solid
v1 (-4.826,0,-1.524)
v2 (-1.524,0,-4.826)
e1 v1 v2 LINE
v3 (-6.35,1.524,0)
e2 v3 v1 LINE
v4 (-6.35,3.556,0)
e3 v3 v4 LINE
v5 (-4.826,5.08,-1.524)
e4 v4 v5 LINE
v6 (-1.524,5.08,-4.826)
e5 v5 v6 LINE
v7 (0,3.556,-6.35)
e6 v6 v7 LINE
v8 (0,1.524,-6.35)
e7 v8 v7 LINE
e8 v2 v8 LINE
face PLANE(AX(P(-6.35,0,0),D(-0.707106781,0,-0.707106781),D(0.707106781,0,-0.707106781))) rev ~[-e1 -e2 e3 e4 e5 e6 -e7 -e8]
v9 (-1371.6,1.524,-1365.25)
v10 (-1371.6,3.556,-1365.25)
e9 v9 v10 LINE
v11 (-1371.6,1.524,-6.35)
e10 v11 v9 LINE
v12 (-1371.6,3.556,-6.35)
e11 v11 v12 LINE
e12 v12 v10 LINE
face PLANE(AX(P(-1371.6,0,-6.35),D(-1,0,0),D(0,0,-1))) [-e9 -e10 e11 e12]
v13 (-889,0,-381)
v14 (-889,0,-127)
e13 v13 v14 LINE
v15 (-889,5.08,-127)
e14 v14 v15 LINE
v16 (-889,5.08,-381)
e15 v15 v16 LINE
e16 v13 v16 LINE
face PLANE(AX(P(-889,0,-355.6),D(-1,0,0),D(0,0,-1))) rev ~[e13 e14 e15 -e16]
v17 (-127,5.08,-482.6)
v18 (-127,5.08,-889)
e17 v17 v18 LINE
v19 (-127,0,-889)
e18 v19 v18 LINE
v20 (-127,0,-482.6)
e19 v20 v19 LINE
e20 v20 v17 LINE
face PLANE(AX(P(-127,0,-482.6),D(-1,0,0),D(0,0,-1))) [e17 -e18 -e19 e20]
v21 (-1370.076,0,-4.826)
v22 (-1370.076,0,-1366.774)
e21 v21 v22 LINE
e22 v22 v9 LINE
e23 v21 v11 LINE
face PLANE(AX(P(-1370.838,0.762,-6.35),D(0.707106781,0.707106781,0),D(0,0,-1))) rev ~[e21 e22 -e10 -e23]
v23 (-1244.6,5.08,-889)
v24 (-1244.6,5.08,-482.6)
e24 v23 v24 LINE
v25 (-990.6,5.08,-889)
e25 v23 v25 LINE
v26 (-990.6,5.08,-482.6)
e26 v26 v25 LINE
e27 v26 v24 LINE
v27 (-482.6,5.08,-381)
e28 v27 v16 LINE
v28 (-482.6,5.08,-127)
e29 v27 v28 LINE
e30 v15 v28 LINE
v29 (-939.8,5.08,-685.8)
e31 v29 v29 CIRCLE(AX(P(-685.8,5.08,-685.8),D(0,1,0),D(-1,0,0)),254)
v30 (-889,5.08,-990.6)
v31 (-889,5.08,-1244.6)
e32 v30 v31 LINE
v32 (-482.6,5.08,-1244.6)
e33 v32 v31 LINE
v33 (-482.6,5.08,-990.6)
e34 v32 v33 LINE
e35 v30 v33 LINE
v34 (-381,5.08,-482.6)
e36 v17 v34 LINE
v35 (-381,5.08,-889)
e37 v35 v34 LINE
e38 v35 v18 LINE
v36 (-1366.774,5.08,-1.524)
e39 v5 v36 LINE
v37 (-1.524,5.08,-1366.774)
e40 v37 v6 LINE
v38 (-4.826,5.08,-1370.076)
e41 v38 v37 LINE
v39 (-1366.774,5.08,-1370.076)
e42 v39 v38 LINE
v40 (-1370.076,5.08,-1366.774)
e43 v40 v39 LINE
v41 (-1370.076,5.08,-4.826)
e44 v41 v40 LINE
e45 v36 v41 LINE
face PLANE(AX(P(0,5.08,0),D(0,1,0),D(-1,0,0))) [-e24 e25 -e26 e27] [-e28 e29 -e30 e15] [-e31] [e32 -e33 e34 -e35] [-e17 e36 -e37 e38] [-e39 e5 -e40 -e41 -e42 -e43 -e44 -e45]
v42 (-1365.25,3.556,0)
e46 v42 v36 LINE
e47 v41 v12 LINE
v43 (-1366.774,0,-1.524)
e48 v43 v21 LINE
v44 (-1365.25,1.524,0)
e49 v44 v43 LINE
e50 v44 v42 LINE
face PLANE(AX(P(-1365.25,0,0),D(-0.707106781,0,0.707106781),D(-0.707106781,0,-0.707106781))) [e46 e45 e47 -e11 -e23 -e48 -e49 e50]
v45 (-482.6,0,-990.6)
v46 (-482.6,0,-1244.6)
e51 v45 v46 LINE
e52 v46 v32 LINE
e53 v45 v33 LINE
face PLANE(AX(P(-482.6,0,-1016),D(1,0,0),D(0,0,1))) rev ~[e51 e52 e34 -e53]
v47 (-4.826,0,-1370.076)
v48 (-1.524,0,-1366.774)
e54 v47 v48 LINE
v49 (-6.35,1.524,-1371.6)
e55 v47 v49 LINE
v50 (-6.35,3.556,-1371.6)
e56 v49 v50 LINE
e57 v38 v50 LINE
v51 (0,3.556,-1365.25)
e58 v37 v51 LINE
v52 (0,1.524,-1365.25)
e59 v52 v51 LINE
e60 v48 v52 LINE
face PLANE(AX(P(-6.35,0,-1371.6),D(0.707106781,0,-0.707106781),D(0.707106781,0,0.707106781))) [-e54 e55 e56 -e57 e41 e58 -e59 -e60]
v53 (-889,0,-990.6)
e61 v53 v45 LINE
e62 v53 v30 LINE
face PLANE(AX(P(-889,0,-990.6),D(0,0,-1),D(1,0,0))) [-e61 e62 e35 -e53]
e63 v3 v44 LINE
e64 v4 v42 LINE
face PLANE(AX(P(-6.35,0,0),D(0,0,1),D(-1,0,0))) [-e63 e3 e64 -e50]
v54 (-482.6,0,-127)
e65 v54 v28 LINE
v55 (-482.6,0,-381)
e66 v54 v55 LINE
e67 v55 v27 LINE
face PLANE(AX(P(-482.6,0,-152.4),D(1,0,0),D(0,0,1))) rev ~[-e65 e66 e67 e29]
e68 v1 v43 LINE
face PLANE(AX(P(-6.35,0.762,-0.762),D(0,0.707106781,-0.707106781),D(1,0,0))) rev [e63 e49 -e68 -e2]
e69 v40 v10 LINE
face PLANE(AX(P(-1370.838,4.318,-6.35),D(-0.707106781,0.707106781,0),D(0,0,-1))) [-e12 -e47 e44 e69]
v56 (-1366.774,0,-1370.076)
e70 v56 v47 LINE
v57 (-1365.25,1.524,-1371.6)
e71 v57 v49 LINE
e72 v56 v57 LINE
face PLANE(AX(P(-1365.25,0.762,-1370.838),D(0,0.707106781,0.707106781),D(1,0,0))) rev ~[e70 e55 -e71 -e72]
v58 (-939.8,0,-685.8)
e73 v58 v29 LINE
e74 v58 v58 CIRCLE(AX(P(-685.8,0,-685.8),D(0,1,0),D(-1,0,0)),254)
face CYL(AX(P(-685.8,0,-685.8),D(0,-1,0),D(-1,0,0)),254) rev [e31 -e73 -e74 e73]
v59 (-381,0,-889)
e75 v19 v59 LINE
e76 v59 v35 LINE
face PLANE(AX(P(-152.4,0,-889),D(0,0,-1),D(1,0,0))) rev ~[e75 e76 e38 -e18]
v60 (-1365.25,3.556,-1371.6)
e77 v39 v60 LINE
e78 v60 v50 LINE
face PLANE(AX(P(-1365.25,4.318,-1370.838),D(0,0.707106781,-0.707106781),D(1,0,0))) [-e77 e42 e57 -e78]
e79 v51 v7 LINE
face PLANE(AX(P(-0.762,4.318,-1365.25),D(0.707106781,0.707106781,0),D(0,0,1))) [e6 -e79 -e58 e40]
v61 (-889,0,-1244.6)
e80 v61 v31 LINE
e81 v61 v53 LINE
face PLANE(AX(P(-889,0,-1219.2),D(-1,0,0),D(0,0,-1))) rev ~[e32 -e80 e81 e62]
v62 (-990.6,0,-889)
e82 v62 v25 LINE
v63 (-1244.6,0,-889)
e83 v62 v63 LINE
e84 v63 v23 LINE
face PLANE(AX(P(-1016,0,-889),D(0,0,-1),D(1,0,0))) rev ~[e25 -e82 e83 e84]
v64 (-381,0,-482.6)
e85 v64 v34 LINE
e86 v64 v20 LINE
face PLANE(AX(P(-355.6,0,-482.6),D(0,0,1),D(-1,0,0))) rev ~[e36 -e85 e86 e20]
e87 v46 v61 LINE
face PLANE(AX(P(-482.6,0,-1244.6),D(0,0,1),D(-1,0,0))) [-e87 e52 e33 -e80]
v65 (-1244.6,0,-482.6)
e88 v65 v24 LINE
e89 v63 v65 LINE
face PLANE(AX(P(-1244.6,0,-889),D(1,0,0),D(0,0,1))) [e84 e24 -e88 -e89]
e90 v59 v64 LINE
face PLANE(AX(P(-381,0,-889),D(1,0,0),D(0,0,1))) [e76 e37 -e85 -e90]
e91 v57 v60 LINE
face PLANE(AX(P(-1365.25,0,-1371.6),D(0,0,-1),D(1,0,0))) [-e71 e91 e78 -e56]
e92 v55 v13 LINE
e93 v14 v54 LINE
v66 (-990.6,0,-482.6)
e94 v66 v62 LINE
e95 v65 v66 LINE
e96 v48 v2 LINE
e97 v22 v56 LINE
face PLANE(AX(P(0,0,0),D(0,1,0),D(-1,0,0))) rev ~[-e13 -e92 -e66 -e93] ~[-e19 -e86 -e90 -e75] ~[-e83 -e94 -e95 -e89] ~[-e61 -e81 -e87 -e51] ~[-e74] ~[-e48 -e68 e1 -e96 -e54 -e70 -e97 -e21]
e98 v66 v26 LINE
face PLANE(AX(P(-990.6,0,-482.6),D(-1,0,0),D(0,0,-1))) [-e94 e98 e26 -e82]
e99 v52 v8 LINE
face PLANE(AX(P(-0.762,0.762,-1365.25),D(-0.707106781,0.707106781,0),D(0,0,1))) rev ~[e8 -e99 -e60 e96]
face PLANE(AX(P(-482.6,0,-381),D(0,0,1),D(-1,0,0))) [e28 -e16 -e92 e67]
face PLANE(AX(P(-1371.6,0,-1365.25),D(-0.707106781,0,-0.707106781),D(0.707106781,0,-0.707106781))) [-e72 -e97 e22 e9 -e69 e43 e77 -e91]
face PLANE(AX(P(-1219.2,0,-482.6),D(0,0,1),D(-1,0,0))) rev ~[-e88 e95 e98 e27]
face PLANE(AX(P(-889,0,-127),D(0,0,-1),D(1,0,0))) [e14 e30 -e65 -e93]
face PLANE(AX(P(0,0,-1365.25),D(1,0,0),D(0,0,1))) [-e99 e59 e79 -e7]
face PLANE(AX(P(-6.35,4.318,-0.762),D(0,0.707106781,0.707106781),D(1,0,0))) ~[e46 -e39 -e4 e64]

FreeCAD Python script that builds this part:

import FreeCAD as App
import Part
import Sketcher
from FreeCAD import Vector
Q = App.Units.Quantity


def edges_at(feature, points):
    """Names of the edges that pass closest to the given points."""
    edges = feature.Shape.Edges
    near = lambda p: min(range(len(edges)), key=lambda i: edges[i].distToShape(Part.Vertex(*p))[0])
    return sorted({f"Edge{near(p) + 1}" for p in points})


def add_polygon(sketch, points):
    """Adds a closed chain of lines whose ends are joined by coincident constraints."""
    first, n = sketch.GeometryCount, len(points)
    for a, b in zip(points, points[1:] + points[:1]):
        sketch.addGeometry(Part.LineSegment(App.Vector(*a, 0), App.Vector(*b, 0)), False)
    for i in range(n):
        sketch.addConstraint(Sketcher.Constraint("Coincident", first + i, 2, first + (i + 1) % n, 1))

doc = App.newDocument("Part")
params = doc.addObject("Spreadsheet::Sheet", "Params")
for row, (alias, value) in enumerate([
    ("sketch1_diameter", "20 in"),
    ("sketch1_width", "16 in"),
    ("sketch1_width2", "10 in"),
    ("pad1_length", "0.2 in"),
    ("chamfer_size", "0.06 in"),
], start=1):
    params.set(f"A{row}", alias)
    params.set(f"B{row}", "=" + value)
    params.setAlias(f"B{row}", alias)

body = doc.addObject("PartDesign::Body", "Body")

# Sketch on XZ plane
sketch1 = body.newObject("Sketcher::SketchObject", "Sketch")
sketch1.AttachmentSupport = (doc.getObject("XZ_Plane"), [""])
sketch1.MapMode = "FlatFace"
add_polygon(sketch1, [(-1365, 0), (-6, 0), (0, -6), (0, -1365), (-6, -1372), (-1365, -1372), (-1372, -1365), (-1372, -6)])  # lines 0-7
add_polygon(sketch1, [(-1245, -889), (-991, -889), (-991, -483), (-1245, -483)])  # lines 8-11
add_polygon(sketch1, [(-889, -127), (-889, -381), (-483, -381), (-483, -127)])  # lines 12-15
add_polygon(sketch1, [(-127, -483), (-381, -483), (-381, -889), (-127, -889)])  # lines 16-19
add_polygon(sketch1, [(-483, -1245), (-483, -991), (-889, -991), (-889, -1245)])  # lines 20-23
sketch1.addGeometry(Part.Circle(Vector(-686, -686, 0), Vector(0, 0, 1), 254), False)  # 24
sketch1.addConstraint([
    Sketcher.Constraint("Horizontal", 0),
    Sketcher.Constraint("Vertical", 2),
    Sketcher.Constraint("Horizontal", 4),
    Sketcher.Constraint("Vertical", 6),
    Sketcher.Constraint("Horizontal", 8),
    Sketcher.Constraint("Vertical", 9),
    Sketcher.Constraint("Horizontal", 10),
    Sketcher.Constraint("Vertical", 11),
    Sketcher.Constraint("Vertical", 12),
    Sketcher.Constraint("Horizontal", 13),
    Sketcher.Constraint("Vertical", 14),
    Sketcher.Constraint("Horizontal", 15),
    Sketcher.Constraint("Horizontal", 16),
    Sketcher.Constraint("Vertical", 17),
    Sketcher.Constraint("Horizontal", 18),
    Sketcher.Constraint("Vertical", 19),
    Sketcher.Constraint("Vertical", 20),
    Sketcher.Constraint("Horizontal", 21),
    Sketcher.Constraint("Vertical", 22),
    Sketcher.Constraint("Horizontal", 23),
    Sketcher.Constraint("PointOnObject", 0, 2, -1),
    Sketcher.Constraint("PointOnObject", 1, 2, -2),
    Sketcher.Constraint("Perpendicular", 1, 3),
    Sketcher.Constraint("Perpendicular", 3, 5),
    Sketcher.Constraint("Perpendicular", 5, 7),
    Sketcher.Constraint("Horizontal", 2, 2, 5, 2),
    Sketcher.Constraint("Horizontal", 1, 2, 6, 2),
    Sketcher.Constraint("Horizontal", 10, 2, 16, 2),
    Sketcher.Constraint("Horizontal", 11, 2, 17, 2),
    Sketcher.Constraint("Vertical", 0, 2, 3, 2),
    Sketcher.Constraint("Vertical", 4, 2, 7, 2),
    Sketcher.Constraint("Vertical", 14, 2, 20, 2),
    Sketcher.Constraint("Vertical", 15, 2, 21, 2),
    Sketcher.Constraint("Equal", 10, 16),
    Sketcher.Constraint("Equal", 4, 2),
    Sketcher.Constraint("Equal", 23, 9),
    Sketcher.Constraint("Equal", 18, 12),
    Sketcher.Constraint("Equal", 14, 20),
    Sketcher.Constraint("Diameter", 24, Q("20 in")),
    Sketcher.Constraint("DistanceX", 13, 1, 13, 2, Q("16 in")),
    Sketcher.Constraint("DistanceY", 3, 2, -1, 1, Q("54 in")),
    Sketcher.Constraint("DistanceY", 8, 2, 24, 3, Q("8 in")),
    Sketcher.Constraint("DistanceX", 9, 2, 12, 2, Q("4 in")),
    Sketcher.Constraint("DistanceY", 9, 2, 12, 2, Q("4 in")),
    Sketcher.Constraint("DistanceX", 12, 2, 24, 3, Q("8 in")),
    Sketcher.Constraint("DistanceX", 13, 2, 16, 2, Q("4 in")),
    Sketcher.Constraint("DistanceY", 20, 2, 17, 2, Q("4 in")),
    Sketcher.Constraint("DistanceX", 8, 1, 8, 2, Q("10 in")),
    Sketcher.Constraint("DistanceX", 0, 2, -1, 1, Q("0.25 in")),
    Sketcher.Constraint("DistanceX", 24, 3, -1, 1, Q("27 in")),
    Sketcher.Constraint("DistanceY", 24, 3, -1, 1, Q("27 in")),
])
sketch1.setExpression("Constraints[62]", "Params.sketch1_diameter")
sketch1.setExpression("Constraints[63]", "Params.sketch1_width")
sketch1.setExpression("Constraints[71]", "Params.sketch1_width2")
pad1 = body.newObject("PartDesign::Pad", "Pad")
pad1.Profile = sketch1
pad1.setExpression("Length", "Params.pad1_length")
pad1.Reversed = True
doc.recompute()

chamfer = body.newObject("PartDesign::Chamfer", "Chamfer")
chamfer.Base = (pad1, edges_at(pad1, [
    (-1371.6, 5.08, -685.8),
    (-1371.6, 0, -685.8),
    (-685.8, 5.08, 0),
    (-685.8, 0, 0),
    (-685.8, 5.08, -1371.6),
    (-685.8, 0, -1371.6),
    (0, 5.08, -685.8),
    (0, 0, -685.8),
]))
chamfer.setExpression("Size", "Params.chamfer_size")

doc.recompute()
